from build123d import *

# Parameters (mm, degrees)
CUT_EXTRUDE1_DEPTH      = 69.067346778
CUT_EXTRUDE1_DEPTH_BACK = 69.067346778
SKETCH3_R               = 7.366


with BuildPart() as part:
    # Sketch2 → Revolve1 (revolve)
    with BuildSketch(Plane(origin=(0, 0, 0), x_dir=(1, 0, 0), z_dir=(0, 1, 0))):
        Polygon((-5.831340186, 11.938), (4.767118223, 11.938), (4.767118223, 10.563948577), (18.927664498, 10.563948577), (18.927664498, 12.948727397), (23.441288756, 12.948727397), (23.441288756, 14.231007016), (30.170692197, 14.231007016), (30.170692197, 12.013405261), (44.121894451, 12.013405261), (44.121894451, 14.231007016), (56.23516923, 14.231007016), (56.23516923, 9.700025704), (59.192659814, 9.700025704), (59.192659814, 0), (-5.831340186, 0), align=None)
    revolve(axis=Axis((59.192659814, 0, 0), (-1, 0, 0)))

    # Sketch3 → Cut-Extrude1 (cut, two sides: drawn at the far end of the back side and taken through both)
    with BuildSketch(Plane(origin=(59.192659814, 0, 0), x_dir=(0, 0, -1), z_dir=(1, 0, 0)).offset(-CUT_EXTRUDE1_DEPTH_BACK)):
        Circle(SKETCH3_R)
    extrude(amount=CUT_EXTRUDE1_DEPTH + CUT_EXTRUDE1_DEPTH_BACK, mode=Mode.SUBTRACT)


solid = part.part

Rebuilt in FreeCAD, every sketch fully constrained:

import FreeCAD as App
import Part
import Sketcher
Q = App.Units.Quantity

doc = App.newDocument("Part")
params = doc.addObject("Spreadsheet::Sheet", "Params")
for row, (alias, value) in enumerate([
    ("sketch1_width", "2.56 in"),
    ("sketch1_height", "0.47 in"),
    ("revolution_angle", "360 deg"),
    ("sketch2_diameter", "0.58 in"),
], start=1):
    params.set(f"A{row}", alias)
    params.set(f"B{row}", "=" + value)
    params.setAlias(f"B{row}", alias)

body = doc.addObject("PartDesign::Body", "Body")

# Sketch on XZ plane
sketch1 = body.newObject("Sketcher::SketchObject", "Sketch")
sketch1.AttachmentSupport = (doc.getObject("XZ_Plane"), [""])
sketch1.MapMode = "FlatFace"
sketch1.addGeometry(Part.LineSegment(App.Vector(4.767118, -11.938, 0), App.Vector(-5.83134, -11.938, 0)), False)
sketch1.addGeometry(Part.LineSegment(App.Vector(-5.83134, -11.938, 0), App.Vector(-5.83134, 0, 0)), False)
sketch1.addGeometry(Part.LineSegment(App.Vector(-5.83134, 0, 0), App.Vector(59.19266, 0, 0)), False)
sketch1.addGeometry(Part.LineSegment(App.Vector(59.19266, 0, 0), App.Vector(59.19266, -9.700026, 0)), False)
sketch1.addGeometry(Part.LineSegment(App.Vector(59.19266, -9.700026, 0), App.Vector(56.235169, -9.700026, 0)), False)
sketch1.addGeometry(Part.LineSegment(App.Vector(56.235169, -9.700026, 0), App.Vector(56.235169, -14.231007, 0)), False)
sketch1.addGeometry(Part.LineSegment(App.Vector(56.235169, -14.231007, 0), App.Vector(44.121894, -14.231007, 0)), False)
sketch1.addGeometry(Part.LineSegment(App.Vector(44.121894, -14.231007, 0), App.Vector(44.121894, -12.013405, 0)), False)
sketch1.addGeometry(Part.LineSegment(App.Vector(44.121894, -12.013405, 0), App.Vector(30.170692, -12.013405, 0)), False)
sketch1.addGeometry(Part.LineSegment(App.Vector(30.170692, -12.013405, 0), App.Vector(30.170692, -14.231007, 0)), False)
sketch1.addGeometry(Part.LineSegment(App.Vector(30.170692, -14.231007, 0), App.Vector(23.441289, -14.231007, 0)), False)
sketch1.addGeometry(Part.LineSegment(App.Vector(23.441289, -14.231007, 0), App.Vector(23.441289, -12.948727, 0)), False)
sketch1.addGeometry(Part.LineSegment(App.Vector(23.441289, -12.948727, 0), App.Vector(18.927664, -12.948727, 0)), False)
sketch1.addGeometry(Part.LineSegment(App.Vector(18.927664, -12.948727, 0), App.Vector(18.927664, -10.563949, 0)), False)
sketch1.addGeometry(Part.LineSegment(App.Vector(18.927664, -10.563949, 0), App.Vector(4.767118, -10.563949, 0)), False)
sketch1.addGeometry(Part.LineSegment(App.Vector(4.767118, -10.563949, 0), App.Vector(4.767118, -11.938, 0)), False)
sketch1.addConstraint(Sketcher.Constraint("Coincident", 0, 2, 1, 1))
sketch1.addConstraint(Sketcher.Constraint("Coincident", 1, 2, 2, 1))
sketch1.addConstraint(Sketcher.Constraint("Coincident", 2, 2, 3, 1))
sketch1.addConstraint(Sketcher.Constraint("Coincident", 3, 2, 4, 1))
sketch1.addConstraint(Sketcher.Constraint("Coincident", 4, 2, 5, 1))
sketch1.addConstraint(Sketcher.Constraint("Coincident", 5, 2, 6, 1))
sketch1.addConstraint(Sketcher.Constraint("Coincident", 6, 2, 7, 1))
sketch1.addConstraint(Sketcher.Constraint("Coincident", 7, 2, 8, 1))
sketch1.addConstraint(Sketcher.Constraint("Coincident", 8, 2, 9, 1))
sketch1.addConstraint(Sketcher.Constraint("Coincident", 9, 2, 10, 1))
sketch1.addConstraint(Sketcher.Constraint("Coincident", 10, 2, 11, 1))
sketch1.addConstraint(Sketcher.Constraint("Coincident", 11, 2, 12, 1))
sketch1.addConstraint(Sketcher.Constraint("Coincident", 12, 2, 13, 1))
sketch1.addConstraint(Sketcher.Constraint("Coincident", 13, 2, 14, 1))
sketch1.addConstraint(Sketcher.Constraint("Coincident", 14, 2, 15, 1))
sketch1.addConstraint(Sketcher.Constraint("Coincident", 15, 2, 0, 1))
sketch1.addConstraint(Sketcher.Constraint("Horizontal", 0))
sketch1.addConstraint(Sketcher.Constraint("Vertical", 1))
sketch1.addConstraint(Sketcher.Constraint("Horizontal", 2))
sketch1.addConstraint(Sketcher.Constraint("Vertical", 3))
sketch1.addConstraint(Sketcher.Constraint("Horizontal", 4))
sketch1.addConstraint(Sketcher.Constraint("Vertical", 5))
sketch1.addConstraint(Sketcher.Constraint("Horizontal", 6))
sketch1.addConstraint(Sketcher.Constraint("Vertical", 7))
sketch1.addConstraint(Sketcher.Constraint("Horizontal", 8))
sketch1.addConstraint(Sketcher.Constraint("Vertical", 9))
sketch1.addConstraint(Sketcher.Constraint("Horizontal", 10))
sketch1.addConstraint(Sketcher.Constraint("Vertical", 11))
sketch1.addConstraint(Sketcher.Constraint("Horizontal", 12))
sketch1.addConstraint(Sketcher.Constraint("Vertical", 13))
sketch1.addConstraint(Sketcher.Constraint("Horizontal", 14))
sketch1.addConstraint(Sketcher.Constraint("Vertical", 15))
sketch1.addConstraint(Sketcher.Constraint("PointOnObject", 1, 2, -1))
sketch1.addConstraint(Sketcher.Constraint("Horizontal", 6, 2, 9, 2))
sketch1.addConstraint(Sketcher.Constraint("DistanceX", 2, 1, 2, 2, Q("2.56 in")))
sketch1.addConstraint(Sketcher.Constraint("DistanceY", 1, 1, 1, 2, Q("0.47 in")))
sketch1.addConstraint(Sketcher.Constraint("DistanceY", 7, 1, 7, 2, Q("2.217602 mm")))
sketch1.addConstraint(Sketcher.Constraint("DistanceX", 0, 2, 0, 1, Q("10.598458 mm")))
sketch1.addConstraint(Sketcher.Constraint("DistanceX", 4, 2, 4, 1, Q("2.957491 mm")))
sketch1.addConstraint(Sketcher.Constraint("DistanceY", 5, 2, 5, 1, Q("4.530981 mm")))
sketch1.addConstraint(Sketcher.Constraint("DistanceY", 11, 1, 11, 2, Q("1.28228 mm")))
sketch1.addConstraint(Sketcher.Constraint("DistanceY", 13, 1, 13, 2, Q("2.384779 mm")))
sketch1.addConstraint(Sketcher.Constraint("DistanceY", 15, 2, 15, 1, Q("1.374051 mm")))
sketch1.addConstraint(Sketcher.Constraint("DistanceX", 6, 2, 6, 1, Q("12.113275 mm")))
sketch1.addConstraint(Sketcher.Constraint("DistanceX", 8, 2, 8, 1, Q("13.951202 mm")))
sketch1.addConstraint(Sketcher.Constraint("DistanceX", 10, 2, 10, 1, Q("6.729403 mm")))
sketch1.addConstraint(Sketcher.Constraint("DistanceX", 12, 2, 12, 1, Q("4.513624 mm")))
sketch1.addConstraint(Sketcher.Constraint("DistanceX", 0, 2, -1, 1, Q("5.83134 mm")))
sketch1.setExpression("Constraints[34]", "Params.sketch1_width")
sketch1.setExpression("Constraints[35]", "Params.sketch1_height")
revolution = body.newObject("PartDesign::Revolution", "Revolution")
revolution.Profile = sketch1
revolution.ReferenceAxis = (sketch1, ["H_Axis"])
revolution.setExpression("Angle", "Params.revolution_angle")

# Sketch on YZ plane
sketch2 = body.newObject("Sketcher::SketchObject", "Sketch001")
sketch2.AttachmentSupport = (doc.getObject("YZ_Plane"), [""])
sketch2.MapMode = "FlatFace"
sketch2.AttachmentOffset = App.Placement(App.Vector(0, 0, 59.19266), App.Rotation())
sketch2.addGeometry(Part.Circle(App.Vector(0, 0, 0), App.Vector(0, 0, 1), 7.366), False)
sketch2.addConstraint(Sketcher.Constraint("Coincident", 0, 3, -1, 1))
sketch2.addConstraint(Sketcher.Constraint("Diameter", 0, Q("0.58 in")))
sketch2.setExpression("Constraints[1]", "Params.sketch2_diameter")
pocket1 = body.newObject("PartDesign::Pocket", "Pocket")
pocket1.Profile = sketch2
pocket1.Type = "ThroughAll"
pocket1.Midplane = True

doc.recompute()
